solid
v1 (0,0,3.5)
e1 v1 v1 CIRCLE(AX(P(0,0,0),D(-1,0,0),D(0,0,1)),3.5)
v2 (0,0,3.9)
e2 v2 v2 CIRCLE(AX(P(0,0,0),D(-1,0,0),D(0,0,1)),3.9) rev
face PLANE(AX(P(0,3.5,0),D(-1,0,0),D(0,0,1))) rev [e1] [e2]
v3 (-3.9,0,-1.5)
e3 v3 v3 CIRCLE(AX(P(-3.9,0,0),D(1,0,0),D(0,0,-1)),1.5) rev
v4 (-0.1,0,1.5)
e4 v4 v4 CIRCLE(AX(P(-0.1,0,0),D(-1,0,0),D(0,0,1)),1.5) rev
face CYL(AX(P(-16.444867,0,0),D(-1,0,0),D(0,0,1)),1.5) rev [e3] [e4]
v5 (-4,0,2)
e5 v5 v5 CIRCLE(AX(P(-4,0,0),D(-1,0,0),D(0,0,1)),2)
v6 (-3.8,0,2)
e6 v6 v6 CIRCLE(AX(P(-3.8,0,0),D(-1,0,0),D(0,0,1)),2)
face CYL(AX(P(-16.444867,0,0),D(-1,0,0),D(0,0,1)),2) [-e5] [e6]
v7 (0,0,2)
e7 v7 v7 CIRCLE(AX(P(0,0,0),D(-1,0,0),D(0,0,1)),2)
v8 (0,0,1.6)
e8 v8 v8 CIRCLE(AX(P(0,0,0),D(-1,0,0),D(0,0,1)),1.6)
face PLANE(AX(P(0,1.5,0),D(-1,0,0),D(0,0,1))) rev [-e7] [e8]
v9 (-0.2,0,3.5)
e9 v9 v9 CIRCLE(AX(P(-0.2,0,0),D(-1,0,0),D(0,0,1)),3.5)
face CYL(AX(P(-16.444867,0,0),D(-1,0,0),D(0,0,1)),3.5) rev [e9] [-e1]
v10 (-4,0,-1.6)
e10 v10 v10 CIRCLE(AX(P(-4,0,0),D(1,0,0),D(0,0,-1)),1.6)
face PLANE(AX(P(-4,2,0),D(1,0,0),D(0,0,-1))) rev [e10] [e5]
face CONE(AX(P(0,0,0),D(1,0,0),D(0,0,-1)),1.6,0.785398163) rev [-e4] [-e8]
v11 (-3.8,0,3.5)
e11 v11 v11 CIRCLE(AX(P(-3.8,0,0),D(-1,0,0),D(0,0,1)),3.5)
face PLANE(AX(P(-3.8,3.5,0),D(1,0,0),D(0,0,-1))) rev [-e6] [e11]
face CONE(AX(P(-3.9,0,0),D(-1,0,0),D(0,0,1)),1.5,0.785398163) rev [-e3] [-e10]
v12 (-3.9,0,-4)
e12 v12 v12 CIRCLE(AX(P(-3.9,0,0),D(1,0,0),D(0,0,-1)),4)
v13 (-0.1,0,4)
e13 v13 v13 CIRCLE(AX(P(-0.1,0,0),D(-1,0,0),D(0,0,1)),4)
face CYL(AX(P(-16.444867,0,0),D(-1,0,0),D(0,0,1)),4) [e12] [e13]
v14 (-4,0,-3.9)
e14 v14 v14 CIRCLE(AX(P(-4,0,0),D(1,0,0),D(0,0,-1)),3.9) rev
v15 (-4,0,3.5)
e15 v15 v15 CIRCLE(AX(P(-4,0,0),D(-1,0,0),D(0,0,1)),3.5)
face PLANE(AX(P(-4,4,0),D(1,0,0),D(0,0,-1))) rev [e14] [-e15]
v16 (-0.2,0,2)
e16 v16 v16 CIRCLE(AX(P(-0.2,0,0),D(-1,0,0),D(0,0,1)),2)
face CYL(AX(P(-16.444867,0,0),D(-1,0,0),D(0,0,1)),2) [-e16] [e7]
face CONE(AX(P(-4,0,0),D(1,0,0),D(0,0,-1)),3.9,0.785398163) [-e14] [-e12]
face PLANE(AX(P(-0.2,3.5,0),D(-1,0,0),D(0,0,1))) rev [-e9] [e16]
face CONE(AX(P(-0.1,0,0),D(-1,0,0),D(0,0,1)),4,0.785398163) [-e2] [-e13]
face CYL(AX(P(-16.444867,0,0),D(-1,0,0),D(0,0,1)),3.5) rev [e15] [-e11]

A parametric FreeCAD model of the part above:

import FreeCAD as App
import Part
import Sketcher
Q = App.Units.Quantity


def edges_at(feature, points):
    """Names of the edges that pass closest to the given points."""
    edges = feature.Shape.Edges
    near = lambda p: min(range(len(edges)), key=lambda i: edges[i].distToShape(Part.Vertex(*p))[0])
    return sorted({f"Edge{near(p) + 1}" for p in points})

doc = App.newDocument("Part")
body = doc.addObject("PartDesign::Body", "Body")

sketch1 = body.newObject("Sketcher::SketchObject", "Sketch")
sketch1.AttachmentSupport = (doc.getObject("XY_Plane"), [""])
sketch1.MapMode = "FlatFace"
sketch1.addGeometry([
    Part.LineSegment(App.Vector(0, 1.5, 0), App.Vector(0, 2, 0)),
    Part.LineSegment(App.Vector(0, 2, 0), App.Vector(-0.2, 2, 0)),
    Part.LineSegment(App.Vector(-0.2, 2, 0), App.Vector(-0.2, 3.5, 0)),
    Part.LineSegment(App.Vector(-0.2, 3.5, 0), App.Vector(0, 3.5, 0)),
    Part.LineSegment(App.Vector(0, 3.5, 0), App.Vector(0, 4, 0)),
    Part.LineSegment(App.Vector(0, 4, 0), App.Vector(-4, 4, 0)),
    Part.LineSegment(App.Vector(-4, 4, 0), App.Vector(-4, 3.5, 0)),
    Part.LineSegment(App.Vector(-4, 3.5, 0), App.Vector(-3.8, 3.5, 0)),
    Part.LineSegment(App.Vector(-3.8, 3.5, 0), App.Vector(-3.8, 2, 0)),
    Part.LineSegment(App.Vector(-3.8, 2, 0), App.Vector(-4, 2, 0)),
    Part.LineSegment(App.Vector(-4, 2, 0), App.Vector(-4, 1.5, 0)),
    Part.LineSegment(App.Vector(-4, 1.5, 0), App.Vector(0, 1.5, 0)),
], False)
sketch1.addConstraint([
    Sketcher.Constraint("Coincident", 0, 2, 1, 1),
    Sketcher.Constraint("Coincident", 1, 2, 2, 1),
    Sketcher.Constraint("Coincident", 2, 2, 3, 1),
    Sketcher.Constraint("Coincident", 3, 2, 4, 1),
    Sketcher.Constraint("Coincident", 4, 2, 5, 1),
    Sketcher.Constraint("Coincident", 5, 2, 6, 1),
    Sketcher.Constraint("Coincident", 6, 2, 7, 1),
    Sketcher.Constraint("Coincident", 7, 2, 8, 1),
    Sketcher.Constraint("Coincident", 8, 2, 9, 1),
    Sketcher.Constraint("Coincident", 9, 2, 10, 1),
    Sketcher.Constraint("Coincident", 10, 2, 11, 1),
    Sketcher.Constraint("Coincident", 11, 2, 0, 1),
    Sketcher.Constraint("Vertical", 0),
    Sketcher.Constraint("Horizontal", 1),
    Sketcher.Constraint("Vertical", 2),
    Sketcher.Constraint("Horizontal", 3),
    Sketcher.Constraint("Vertical", 4),
    Sketcher.Constraint("Horizontal", 5),
    Sketcher.Constraint("Vertical", 6),
    Sketcher.Constraint("Horizontal", 7),
    Sketcher.Constraint("Vertical", 8),
    Sketcher.Constraint("Horizontal", 9),
    Sketcher.Constraint("Vertical", 10),
    Sketcher.Constraint("Horizontal", 11),
    Sketcher.Constraint("PointOnObject", 0, 2, -2),
    Sketcher.Constraint("PointOnObject", 3, 2, -2),
    Sketcher.Constraint("Horizontal", 3, 2, 6, 2),
    Sketcher.Constraint("Horizontal", 1, 2, 8, 2),
    Sketcher.Constraint("Vertical", 6, 2, 9, 2),
    Sketcher.Constraint("Equal", 3, 7),
    Sketcher.Constraint("Equal", 0, 4),
    Sketcher.Constraint("DistanceX", 5, 2, 5, 1, Q("4 mm")),
    Sketcher.Constraint("DistanceX", 1, 2, 1, 1, Q("0.2 mm")),
    Sketcher.Constraint("DistanceY", 0, 1, 0, 2, Q("0.5 mm")),
    Sketcher.Constraint("DistanceY", 2, 1, 2, 2, Q("1.5 mm")),
    Sketcher.Constraint("DistanceY", -1, 1, 0, 2, Q("2 mm")),
])
revolution = body.newObject("PartDesign::Revolution", "Revolution")
revolution.Profile = sketch1
revolution.ReferenceAxis = (sketch1, ["H_Axis"])
revolution.Angle = 360
doc.recompute()

chamfer = body.newObject("PartDesign::Chamfer", "Chamfer")
chamfer.Base = (revolution, edges_at(revolution, [
    (-4, 0, -4),
    (0, 0, -4),
    (0, 0, -1.5),
    (-4, 0, -1.5),
]))
chamfer.Size = 0.1

doc.recompute()
